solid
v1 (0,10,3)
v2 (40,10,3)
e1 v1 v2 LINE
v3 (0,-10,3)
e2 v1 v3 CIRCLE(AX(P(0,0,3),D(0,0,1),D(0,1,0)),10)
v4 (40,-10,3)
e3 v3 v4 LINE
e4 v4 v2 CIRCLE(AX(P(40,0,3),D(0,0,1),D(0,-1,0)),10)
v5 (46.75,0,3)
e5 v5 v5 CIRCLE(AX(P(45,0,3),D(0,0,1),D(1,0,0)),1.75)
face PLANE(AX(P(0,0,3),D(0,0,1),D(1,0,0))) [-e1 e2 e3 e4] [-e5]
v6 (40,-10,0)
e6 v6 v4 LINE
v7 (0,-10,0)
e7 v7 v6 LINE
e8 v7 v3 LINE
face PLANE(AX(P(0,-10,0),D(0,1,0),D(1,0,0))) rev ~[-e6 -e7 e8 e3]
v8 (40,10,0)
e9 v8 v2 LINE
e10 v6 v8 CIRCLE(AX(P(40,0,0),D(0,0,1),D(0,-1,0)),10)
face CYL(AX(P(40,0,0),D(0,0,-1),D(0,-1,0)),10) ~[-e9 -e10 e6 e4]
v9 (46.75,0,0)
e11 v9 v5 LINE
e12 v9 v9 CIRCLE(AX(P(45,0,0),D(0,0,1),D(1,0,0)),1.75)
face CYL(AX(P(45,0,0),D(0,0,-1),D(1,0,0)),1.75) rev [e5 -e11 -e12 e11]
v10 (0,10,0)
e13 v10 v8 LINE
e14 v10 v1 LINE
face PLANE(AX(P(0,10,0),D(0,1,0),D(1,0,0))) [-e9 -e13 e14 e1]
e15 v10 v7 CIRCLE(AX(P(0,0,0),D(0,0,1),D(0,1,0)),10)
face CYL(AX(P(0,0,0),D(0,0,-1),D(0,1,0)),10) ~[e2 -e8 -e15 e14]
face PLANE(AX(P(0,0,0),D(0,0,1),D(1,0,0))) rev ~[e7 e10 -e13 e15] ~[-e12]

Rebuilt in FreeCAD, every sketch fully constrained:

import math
import FreeCAD as App
import Part
import Sketcher
Q = App.Units.Quantity

doc = App.newDocument("Part")
body = doc.addObject("PartDesign::Body", "Body")

# Sketch on XY plane
sketch1 = doc.addObject("Sketcher::SketchObject", "Sketch")
body.addObject(sketch1)
sketch1.AttachmentSupport = (doc.XY_Plane, [""])
sketch1.MapMode = "FlatFace"
sketch1.addGeometry(Part.LineSegment(App.Vector(40, 10, 0), App.Vector(0, 10, 0)), False)
sketch1.addGeometry(Part.ArcOfCircle(Part.Circle(App.Vector(0, 0, 0), App.Vector(0, 0, 1), 10), math.radians(90), math.radians(270)), False)
sketch1.addGeometry(Part.LineSegment(App.Vector(0, -10, 0), App.Vector(40, -10, 0)), False)
sketch1.addGeometry(Part.ArcOfCircle(Part.Circle(App.Vector(40, 0, 0), App.Vector(0, 0, 1), 10), math.radians(-90), math.radians(90)), False)
sketch1.addGeometry(Part.Circle(App.Vector(45, 0, 0), App.Vector(0, 0, 1), 1.8), False)
sketch1.addConstraint(Sketcher.Constraint("Tangent", 0, 2, 1, 1))
sketch1.addConstraint(Sketcher.Constraint("Tangent", 1, 2, 2, 1))
sketch1.addConstraint(Sketcher.Constraint("Tangent", 2, 2, 3, 1))
sketch1.addConstraint(Sketcher.Constraint("Tangent", 3, 2, 0, 1))
sketch1.addConstraint(Sketcher.Constraint("Horizontal", 0))
sketch1.addConstraint(Sketcher.Constraint("Horizontal", 2))
sketch1.addConstraint(Sketcher.Constraint("Coincident", 1, 3, -1, 1))
sketch1.addConstraint(Sketcher.Constraint("PointOnObject", 4, 3, -1))
sketch1.addConstraint(Sketcher.Constraint("Radius", 1, Q("10 mm")))
sketch1.addConstraint(Sketcher.Constraint("Diameter", 4, Q("3.5 mm")))
sketch1.addConstraint(Sketcher.Constraint("DistanceX", 0, 2, 0, 1, Q("40 mm")))
sketch1.addConstraint(Sketcher.Constraint("DistanceX", 3, 3, 4, 3, Q("5 mm")))
pad1 = doc.addObject("PartDesign::Pad", "Pad")
body.addObject(pad1)
pad1.Profile = sketch1
pad1.Length = 3

doc.recompute()
